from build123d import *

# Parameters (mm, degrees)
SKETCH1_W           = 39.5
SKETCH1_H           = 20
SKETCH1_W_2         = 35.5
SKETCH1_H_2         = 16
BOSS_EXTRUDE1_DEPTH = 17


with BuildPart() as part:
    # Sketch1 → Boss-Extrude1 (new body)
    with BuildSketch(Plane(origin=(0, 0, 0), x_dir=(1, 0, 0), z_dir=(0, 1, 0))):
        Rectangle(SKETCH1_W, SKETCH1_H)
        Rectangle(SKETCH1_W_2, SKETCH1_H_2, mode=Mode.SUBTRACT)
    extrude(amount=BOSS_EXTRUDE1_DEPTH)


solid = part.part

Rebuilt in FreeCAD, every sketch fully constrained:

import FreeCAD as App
import Part
import Sketcher
Q = App.Units.Quantity

doc = App.newDocument("Part")
body = doc.addObject("PartDesign::Body", "Body")

sketch1 = body.newObject("Sketcher::SketchObject", "Sketch")
sketch1.AttachmentSupport = (doc.getObject("XZ_Plane"), [""])
sketch1.MapMode = "FlatFace"
sketch1.addGeometry([
    Part.LineSegment(App.Vector(-19.75, -10, 0), App.Vector(-19.75, 10, 0)),
    Part.LineSegment(App.Vector(-19.75, 10, 0), App.Vector(19.75, 10, 0)),
    Part.LineSegment(App.Vector(19.75, 10, 0), App.Vector(19.75, -10, 0)),
    Part.LineSegment(App.Vector(19.75, -10, 0), App.Vector(-19.75, -10, 0)),
    Part.LineSegment(App.Vector(17.75, 8, 0), App.Vector(-17.75, 8, 0)),
    Part.LineSegment(App.Vector(-17.75, 8, 0), App.Vector(-17.75, -8, 0)),
    Part.LineSegment(App.Vector(-17.75, -8, 0), App.Vector(17.75, -8, 0)),
    Part.LineSegment(App.Vector(17.75, -8, 0), App.Vector(17.75, 8, 0)),
], False)
sketch1.addConstraint([
    Sketcher.Constraint("Coincident", 0, 2, 1, 1),
    Sketcher.Constraint("Coincident", 1, 2, 2, 1),
    Sketcher.Constraint("Coincident", 2, 2, 3, 1),
    Sketcher.Constraint("Coincident", 3, 2, 0, 1),
    Sketcher.Constraint("Coincident", 4, 2, 5, 1),
    Sketcher.Constraint("Coincident", 5, 2, 6, 1),
    Sketcher.Constraint("Coincident", 6, 2, 7, 1),
    Sketcher.Constraint("Coincident", 7, 2, 4, 1),
    Sketcher.Constraint("Vertical", 0),
    Sketcher.Constraint("Horizontal", 1),
    Sketcher.Constraint("Vertical", 2),
    Sketcher.Constraint("Horizontal", 3),
    Sketcher.Constraint("Horizontal", 4),
    Sketcher.Constraint("Vertical", 5),
    Sketcher.Constraint("Horizontal", 6),
    Sketcher.Constraint("Vertical", 7),
    Sketcher.Constraint("Symmetric", 0, 2, 2, 2, -1, 1),
    Sketcher.Constraint("Symmetric", 4, 2, 6, 2, -1, 1),
    Sketcher.Constraint("DistanceY", 0, 1, 0, 2, Q("20 mm")),
    Sketcher.Constraint("DistanceY", 5, 2, 5, 1, Q("16 mm")),
    Sketcher.Constraint("DistanceX", 1, 1, 1, 2, Q("39.5 mm")),
    Sketcher.Constraint("DistanceX", 4, 2, 4, 1, Q("35.5 mm")),
])
pad1 = body.newObject("PartDesign::Pad", "Pad")
pad1.Profile = sketch1
pad1.Length = 17
pad1.Reversed = True

doc.recompute()
